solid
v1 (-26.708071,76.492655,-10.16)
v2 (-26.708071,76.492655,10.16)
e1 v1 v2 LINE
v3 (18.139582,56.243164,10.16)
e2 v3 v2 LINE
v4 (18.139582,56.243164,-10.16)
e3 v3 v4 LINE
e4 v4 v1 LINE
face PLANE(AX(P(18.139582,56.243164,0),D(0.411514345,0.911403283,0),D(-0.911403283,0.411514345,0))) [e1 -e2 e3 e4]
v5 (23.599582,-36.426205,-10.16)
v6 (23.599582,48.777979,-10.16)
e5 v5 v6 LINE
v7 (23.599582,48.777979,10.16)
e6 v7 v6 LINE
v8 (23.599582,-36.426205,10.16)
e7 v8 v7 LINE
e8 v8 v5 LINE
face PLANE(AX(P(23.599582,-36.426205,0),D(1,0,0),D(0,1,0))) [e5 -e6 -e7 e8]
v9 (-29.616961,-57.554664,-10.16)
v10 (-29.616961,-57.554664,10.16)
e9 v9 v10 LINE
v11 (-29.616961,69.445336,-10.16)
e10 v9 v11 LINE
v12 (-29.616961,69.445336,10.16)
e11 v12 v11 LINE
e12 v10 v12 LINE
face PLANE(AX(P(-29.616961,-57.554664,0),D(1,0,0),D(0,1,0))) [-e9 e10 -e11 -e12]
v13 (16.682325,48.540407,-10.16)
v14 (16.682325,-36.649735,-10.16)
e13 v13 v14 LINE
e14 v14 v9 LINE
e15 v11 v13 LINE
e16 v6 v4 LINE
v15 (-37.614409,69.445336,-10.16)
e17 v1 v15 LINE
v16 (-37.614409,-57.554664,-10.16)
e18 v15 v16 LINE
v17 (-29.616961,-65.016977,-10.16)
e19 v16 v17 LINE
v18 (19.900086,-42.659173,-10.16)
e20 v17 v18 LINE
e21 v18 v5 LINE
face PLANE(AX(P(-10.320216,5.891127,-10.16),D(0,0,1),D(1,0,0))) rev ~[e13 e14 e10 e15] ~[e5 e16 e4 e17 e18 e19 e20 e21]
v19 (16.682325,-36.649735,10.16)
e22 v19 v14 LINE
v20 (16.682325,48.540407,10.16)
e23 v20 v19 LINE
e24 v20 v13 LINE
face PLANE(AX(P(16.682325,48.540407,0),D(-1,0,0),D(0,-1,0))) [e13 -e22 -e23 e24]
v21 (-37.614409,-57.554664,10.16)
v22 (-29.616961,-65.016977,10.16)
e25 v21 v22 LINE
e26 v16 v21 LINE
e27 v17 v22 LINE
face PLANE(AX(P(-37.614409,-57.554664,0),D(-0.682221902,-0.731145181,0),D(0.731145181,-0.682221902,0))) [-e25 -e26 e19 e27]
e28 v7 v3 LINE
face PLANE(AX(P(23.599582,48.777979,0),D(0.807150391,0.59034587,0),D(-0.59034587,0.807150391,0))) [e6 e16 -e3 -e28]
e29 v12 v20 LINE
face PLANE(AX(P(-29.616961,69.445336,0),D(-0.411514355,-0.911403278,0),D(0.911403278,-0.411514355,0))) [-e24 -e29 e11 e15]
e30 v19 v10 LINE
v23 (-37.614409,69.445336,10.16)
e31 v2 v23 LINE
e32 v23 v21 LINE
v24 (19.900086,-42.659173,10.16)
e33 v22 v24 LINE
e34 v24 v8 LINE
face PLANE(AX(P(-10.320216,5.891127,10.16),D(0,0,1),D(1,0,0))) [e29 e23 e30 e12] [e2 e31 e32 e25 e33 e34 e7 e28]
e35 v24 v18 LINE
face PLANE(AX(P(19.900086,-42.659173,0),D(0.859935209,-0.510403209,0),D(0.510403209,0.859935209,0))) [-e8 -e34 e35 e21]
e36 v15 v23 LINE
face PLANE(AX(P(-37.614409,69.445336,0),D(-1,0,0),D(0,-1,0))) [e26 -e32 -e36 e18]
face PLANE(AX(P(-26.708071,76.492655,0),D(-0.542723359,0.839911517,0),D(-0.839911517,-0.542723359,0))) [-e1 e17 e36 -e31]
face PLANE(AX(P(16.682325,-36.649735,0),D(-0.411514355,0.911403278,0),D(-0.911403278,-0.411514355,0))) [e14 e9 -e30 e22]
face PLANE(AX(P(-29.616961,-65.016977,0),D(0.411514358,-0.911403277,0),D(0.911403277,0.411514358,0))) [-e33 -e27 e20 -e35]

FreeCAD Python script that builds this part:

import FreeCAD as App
import Part
import Sketcher
Q = App.Units.Quantity

doc = App.newDocument("Part")
body = doc.addObject("PartDesign::Body", "Body")

# Sketch on XY plane
sketch1 = body.newObject("Sketcher::SketchObject", "Sketch")
sketch1.AttachmentSupport = (doc.getObject("XY_Plane"), [""])
sketch1.MapMode = "FlatFace"
sketch1.addGeometry([
    Part.LineSegment(App.Vector(18.139582, 56.243164, 0), App.Vector(-26.708071, 76.492655, 0)),  # 0
    Part.LineSegment(App.Vector(-26.708071, 76.492655, 0), App.Vector(-37.614409, 69.445336, 0)),  # 1
    Part.LineSegment(App.Vector(-37.614409, 69.445336, 0), App.Vector(-37.614409, -57.554664, 0)),  # 2
    Part.LineSegment(App.Vector(-37.614409, -57.554664, 0), App.Vector(-29.616961, -65.016977, 0)),  # 3
    Part.LineSegment(App.Vector(-29.616961, -65.016977, 0), App.Vector(19.900086, -42.659173, 0)),  # 4
    Part.LineSegment(App.Vector(19.900086, -42.659173, 0), App.Vector(23.599582, -36.426205, 0)),  # 5
    Part.LineSegment(App.Vector(23.599582, -36.426205, 0), App.Vector(23.599582, 48.777979, 0)),  # 6
    Part.LineSegment(App.Vector(23.599582, 48.777979, 0), App.Vector(18.139582, 56.243164, 0)),  # 7
    Part.LineSegment(App.Vector(16.682325, -36.649735, 0), App.Vector(-29.616961, -57.554664, 0)),  # 8
    Part.LineSegment(App.Vector(-29.616961, -57.554664, 0), App.Vector(-29.616961, 69.445336, 0)),  # 9
    Part.LineSegment(App.Vector(-29.616961, 69.445336, 0), App.Vector(16.682325, 48.540407, 0)),  # 10
    Part.LineSegment(App.Vector(16.682325, 48.540407, 0), App.Vector(16.682325, -36.649735, 0)),  # 11
], False)
sketch1.addConstraint([
    Sketcher.Constraint("Coincident", 0, 2, 1, 1),
    Sketcher.Constraint("Coincident", 1, 2, 2, 1),
    Sketcher.Constraint("Coincident", 2, 2, 3, 1),
    Sketcher.Constraint("Coincident", 3, 2, 4, 1),
    Sketcher.Constraint("Coincident", 4, 2, 5, 1),
    Sketcher.Constraint("Coincident", 5, 2, 6, 1),
    Sketcher.Constraint("Coincident", 6, 2, 7, 1),
    Sketcher.Constraint("Coincident", 7, 2, 0, 1),
    Sketcher.Constraint("Coincident", 8, 2, 9, 1),
    Sketcher.Constraint("Coincident", 9, 2, 10, 1),
    Sketcher.Constraint("Coincident", 10, 2, 11, 1),
    Sketcher.Constraint("Coincident", 11, 2, 8, 1),
    Sketcher.Constraint("Vertical", 2),
    Sketcher.Constraint("Vertical", 6),
    Sketcher.Constraint("Vertical", 9),
    Sketcher.Constraint("Vertical", 11),
    Sketcher.Constraint("Parallel", 4, 8),
    Sketcher.Constraint("Parallel", 0, 10),
    Sketcher.Constraint("Horizontal", 2, 2, 8, 2),
    Sketcher.Constraint("Horizontal", 1, 2, 9, 2),
    Sketcher.Constraint("Vertical", 3, 2, 8, 2),
    Sketcher.Constraint("Equal", 8, 10),
    Sketcher.Constraint("DistanceY", 2, 2, 2, 1, Q("5 in")),
    Sketcher.Constraint("Distance", 8, Q("2 in")),
    Sketcher.Constraint("Angle", 0, Q("155.700001 deg")),
    Sketcher.Constraint("DistanceX", 7, 2, 6, 2, 5.46),
    Sketcher.Constraint("Distance", 3, 10.938249),
    Sketcher.Constraint("DistanceY", 6, 1, 6, 2, 85.204184),
    Sketcher.Constraint("DistanceX", 0, 2, -1, 1, 26.708071),
    Sketcher.Constraint("DistanceX", 1, 2, -1, 1, 37.614409),
    Sketcher.Constraint("DistanceX", 3, 2, -1, 1, 29.616961),
    Sketcher.Constraint("DistanceY", -1, 1, 6, 2, 48.777979),
    Sketcher.Constraint("DistanceY", 1, 2, 0, 2, 7.047319),
    Sketcher.Constraint("DistanceY", 2, 2, 4, 2, 14.895491),
    Sketcher.Constraint("DistanceY", 3, 2, 5, 2, 28.590772),
    Sketcher.Constraint("DistanceX", 2, 2, 5, 2, 61.213991),
])
pad1 = body.newObject("PartDesign::Pad", "Pad")
pad1.Profile = sketch1
pad1.Length = Q("0.8 in")
pad1.Midplane = True

doc.recompute()
